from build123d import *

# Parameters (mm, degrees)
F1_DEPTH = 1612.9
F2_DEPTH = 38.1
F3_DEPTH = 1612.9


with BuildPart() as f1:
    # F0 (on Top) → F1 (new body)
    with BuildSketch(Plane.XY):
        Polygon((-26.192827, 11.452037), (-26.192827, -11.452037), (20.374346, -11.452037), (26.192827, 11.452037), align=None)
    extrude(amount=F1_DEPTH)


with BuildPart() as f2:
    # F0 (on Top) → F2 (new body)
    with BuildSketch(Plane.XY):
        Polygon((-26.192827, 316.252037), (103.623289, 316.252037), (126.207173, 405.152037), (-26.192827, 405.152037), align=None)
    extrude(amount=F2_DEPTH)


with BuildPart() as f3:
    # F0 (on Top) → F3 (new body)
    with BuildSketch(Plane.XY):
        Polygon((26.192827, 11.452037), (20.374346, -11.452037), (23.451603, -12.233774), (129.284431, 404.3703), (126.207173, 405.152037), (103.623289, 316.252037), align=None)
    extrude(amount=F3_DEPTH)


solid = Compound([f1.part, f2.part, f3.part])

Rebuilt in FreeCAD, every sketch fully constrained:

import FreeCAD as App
import Part
import Sketcher
Q = App.Units.Quantity


def add_polygon(sketch, points):
    """Adds a closed chain of lines whose ends are joined by coincident constraints."""
    first, n = sketch.GeometryCount, len(points)
    for a, b in zip(points, points[1:] + points[:1]):
        sketch.addGeometry(Part.LineSegment(App.Vector(*a, 0), App.Vector(*b, 0)), False)
    for i in range(n):
        sketch.addConstraint(Sketcher.Constraint("Coincident", first + i, 2, first + (i + 1) % n, 1))

doc = App.newDocument("Part")
body = doc.addObject("PartDesign::Body", "Body")

sketch1 = body.newObject("Sketcher::SketchObject", "Sketch")
sketch1.AttachmentSupport = (doc.getObject("XY_Plane"), [""])
sketch1.MapMode = "FlatFace"
add_polygon(sketch1, [(-26, 11), (-26, -11), (20, -11), (26, 11)])
sketch1.addConstraint(Sketcher.Constraint("Vertical", 0))
sketch1.addConstraint(Sketcher.Constraint("Horizontal", 1))
sketch1.addConstraint(Sketcher.Constraint("Horizontal", 3))
sketch1.addConstraint(Sketcher.Constraint("Symmetric", 0, 2, 2, 2, -1, 1))
sketch1.addConstraint(Sketcher.Constraint("DistanceX", 1, 1, 1, 2, Q("46.567173 mm")))
sketch1.addConstraint(Sketcher.Constraint("DistanceX", 3, 2, 3, 1, Q("52.385654 mm")))
sketch1.addConstraint(Sketcher.Constraint("DistanceY", 0, 2, 0, 1, Q("22.904074 mm")))
pad1 = body.newObject("PartDesign::Pad", "Pad")
pad1.Profile = sketch1
pad1.Length = Q("63.5 in")
body2 = doc.addObject("PartDesign::Body", "Body001")

sketch2 = body2.newObject("Sketcher::SketchObject", "Sketch001")
sketch2.AttachmentSupport = (doc.getObject("XY_Plane001"), [""])
sketch2.MapMode = "FlatFace"
add_polygon(sketch2, [(-26, 316), (104, 316), (126, 405), (-26, 405)])
sketch2.addConstraint(Sketcher.Constraint("Horizontal", 0))
sketch2.addConstraint(Sketcher.Constraint("Horizontal", 2))
sketch2.addConstraint(Sketcher.Constraint("Vertical", 3))
sketch2.addConstraint(Sketcher.Constraint("DistanceX", 2, 2, 2, 1, Q("6 in")))
sketch2.addConstraint(Sketcher.Constraint("DistanceY", 3, 2, 3, 1, Q("3.5 in")))
sketch2.addConstraint(Sketcher.Constraint("DistanceX", 0, 1, 0, 2, Q("129.816116 mm")))
sketch2.addConstraint(Sketcher.Constraint("DistanceX", -1, 1, 0, 2, Q("103.623289 mm")))
sketch2.addConstraint(Sketcher.Constraint("DistanceY", -1, 1, 0, 2, Q("316.252037 mm")))
pad2 = body2.newObject("PartDesign::Pad", "Pad001")
pad2.Profile = sketch2
pad2.Length = Q("1.5 in")
body3 = doc.addObject("PartDesign::Body", "Body002")

sketch3 = body3.newObject("Sketcher::SketchObject", "Sketch002")
sketch3.AttachmentSupport = (doc.getObject("XY_Plane002"), [""])
sketch3.MapMode = "FlatFace"
add_polygon(sketch3, [(26.2, 11.5), (20.4, -11.5), (23.5, -12.2), (129.3, 404.4), (126.2, 405.2), (103.6, 316.3)])
sketch3.addConstraint(Sketcher.Constraint("Perpendicular", 0, 1))
sketch3.addConstraint(Sketcher.Constraint("Perpendicular", 1, 2))
sketch3.addConstraint(Sketcher.Constraint("Perpendicular", 2, 3))
sketch3.addConstraint(Sketcher.Constraint("Perpendicular", 3, 4))
sketch3.addConstraint(Sketcher.Constraint("Parallel", 4, 5))
sketch3.addConstraint(Sketcher.Constraint("DistanceY", 5, 2, 4, 2, Q("12 in")))
sketch3.addConstraint(Sketcher.Constraint("DistanceY", 4, 2, 3, 2, Q("3.5 in")))
sketch3.addConstraint(Sketcher.Constraint("Distance", 1, Q("0.125 in")))
sketch3.addConstraint(Sketcher.Constraint("DistanceY", -1, 1, 2, 2, Q("404.3703 mm")))
sketch3.addConstraint(Sketcher.Constraint("DistanceX", -1, 1, 2, 2, Q("129.284431 mm")))
sketch3.addConstraint(Sketcher.Constraint("DistanceX", -1, 1, 4, 2, Q("103.623289 mm")))
sketch3.addConstraint(Sketcher.Constraint("DistanceX", 1, 2, 2, 2, Q("105.832828 mm")))
pad3 = body3.newObject("PartDesign::Pad", "Pad002")
pad3.Profile = sketch3
pad3.Length = Q("63.5 in")

doc.recompute()
